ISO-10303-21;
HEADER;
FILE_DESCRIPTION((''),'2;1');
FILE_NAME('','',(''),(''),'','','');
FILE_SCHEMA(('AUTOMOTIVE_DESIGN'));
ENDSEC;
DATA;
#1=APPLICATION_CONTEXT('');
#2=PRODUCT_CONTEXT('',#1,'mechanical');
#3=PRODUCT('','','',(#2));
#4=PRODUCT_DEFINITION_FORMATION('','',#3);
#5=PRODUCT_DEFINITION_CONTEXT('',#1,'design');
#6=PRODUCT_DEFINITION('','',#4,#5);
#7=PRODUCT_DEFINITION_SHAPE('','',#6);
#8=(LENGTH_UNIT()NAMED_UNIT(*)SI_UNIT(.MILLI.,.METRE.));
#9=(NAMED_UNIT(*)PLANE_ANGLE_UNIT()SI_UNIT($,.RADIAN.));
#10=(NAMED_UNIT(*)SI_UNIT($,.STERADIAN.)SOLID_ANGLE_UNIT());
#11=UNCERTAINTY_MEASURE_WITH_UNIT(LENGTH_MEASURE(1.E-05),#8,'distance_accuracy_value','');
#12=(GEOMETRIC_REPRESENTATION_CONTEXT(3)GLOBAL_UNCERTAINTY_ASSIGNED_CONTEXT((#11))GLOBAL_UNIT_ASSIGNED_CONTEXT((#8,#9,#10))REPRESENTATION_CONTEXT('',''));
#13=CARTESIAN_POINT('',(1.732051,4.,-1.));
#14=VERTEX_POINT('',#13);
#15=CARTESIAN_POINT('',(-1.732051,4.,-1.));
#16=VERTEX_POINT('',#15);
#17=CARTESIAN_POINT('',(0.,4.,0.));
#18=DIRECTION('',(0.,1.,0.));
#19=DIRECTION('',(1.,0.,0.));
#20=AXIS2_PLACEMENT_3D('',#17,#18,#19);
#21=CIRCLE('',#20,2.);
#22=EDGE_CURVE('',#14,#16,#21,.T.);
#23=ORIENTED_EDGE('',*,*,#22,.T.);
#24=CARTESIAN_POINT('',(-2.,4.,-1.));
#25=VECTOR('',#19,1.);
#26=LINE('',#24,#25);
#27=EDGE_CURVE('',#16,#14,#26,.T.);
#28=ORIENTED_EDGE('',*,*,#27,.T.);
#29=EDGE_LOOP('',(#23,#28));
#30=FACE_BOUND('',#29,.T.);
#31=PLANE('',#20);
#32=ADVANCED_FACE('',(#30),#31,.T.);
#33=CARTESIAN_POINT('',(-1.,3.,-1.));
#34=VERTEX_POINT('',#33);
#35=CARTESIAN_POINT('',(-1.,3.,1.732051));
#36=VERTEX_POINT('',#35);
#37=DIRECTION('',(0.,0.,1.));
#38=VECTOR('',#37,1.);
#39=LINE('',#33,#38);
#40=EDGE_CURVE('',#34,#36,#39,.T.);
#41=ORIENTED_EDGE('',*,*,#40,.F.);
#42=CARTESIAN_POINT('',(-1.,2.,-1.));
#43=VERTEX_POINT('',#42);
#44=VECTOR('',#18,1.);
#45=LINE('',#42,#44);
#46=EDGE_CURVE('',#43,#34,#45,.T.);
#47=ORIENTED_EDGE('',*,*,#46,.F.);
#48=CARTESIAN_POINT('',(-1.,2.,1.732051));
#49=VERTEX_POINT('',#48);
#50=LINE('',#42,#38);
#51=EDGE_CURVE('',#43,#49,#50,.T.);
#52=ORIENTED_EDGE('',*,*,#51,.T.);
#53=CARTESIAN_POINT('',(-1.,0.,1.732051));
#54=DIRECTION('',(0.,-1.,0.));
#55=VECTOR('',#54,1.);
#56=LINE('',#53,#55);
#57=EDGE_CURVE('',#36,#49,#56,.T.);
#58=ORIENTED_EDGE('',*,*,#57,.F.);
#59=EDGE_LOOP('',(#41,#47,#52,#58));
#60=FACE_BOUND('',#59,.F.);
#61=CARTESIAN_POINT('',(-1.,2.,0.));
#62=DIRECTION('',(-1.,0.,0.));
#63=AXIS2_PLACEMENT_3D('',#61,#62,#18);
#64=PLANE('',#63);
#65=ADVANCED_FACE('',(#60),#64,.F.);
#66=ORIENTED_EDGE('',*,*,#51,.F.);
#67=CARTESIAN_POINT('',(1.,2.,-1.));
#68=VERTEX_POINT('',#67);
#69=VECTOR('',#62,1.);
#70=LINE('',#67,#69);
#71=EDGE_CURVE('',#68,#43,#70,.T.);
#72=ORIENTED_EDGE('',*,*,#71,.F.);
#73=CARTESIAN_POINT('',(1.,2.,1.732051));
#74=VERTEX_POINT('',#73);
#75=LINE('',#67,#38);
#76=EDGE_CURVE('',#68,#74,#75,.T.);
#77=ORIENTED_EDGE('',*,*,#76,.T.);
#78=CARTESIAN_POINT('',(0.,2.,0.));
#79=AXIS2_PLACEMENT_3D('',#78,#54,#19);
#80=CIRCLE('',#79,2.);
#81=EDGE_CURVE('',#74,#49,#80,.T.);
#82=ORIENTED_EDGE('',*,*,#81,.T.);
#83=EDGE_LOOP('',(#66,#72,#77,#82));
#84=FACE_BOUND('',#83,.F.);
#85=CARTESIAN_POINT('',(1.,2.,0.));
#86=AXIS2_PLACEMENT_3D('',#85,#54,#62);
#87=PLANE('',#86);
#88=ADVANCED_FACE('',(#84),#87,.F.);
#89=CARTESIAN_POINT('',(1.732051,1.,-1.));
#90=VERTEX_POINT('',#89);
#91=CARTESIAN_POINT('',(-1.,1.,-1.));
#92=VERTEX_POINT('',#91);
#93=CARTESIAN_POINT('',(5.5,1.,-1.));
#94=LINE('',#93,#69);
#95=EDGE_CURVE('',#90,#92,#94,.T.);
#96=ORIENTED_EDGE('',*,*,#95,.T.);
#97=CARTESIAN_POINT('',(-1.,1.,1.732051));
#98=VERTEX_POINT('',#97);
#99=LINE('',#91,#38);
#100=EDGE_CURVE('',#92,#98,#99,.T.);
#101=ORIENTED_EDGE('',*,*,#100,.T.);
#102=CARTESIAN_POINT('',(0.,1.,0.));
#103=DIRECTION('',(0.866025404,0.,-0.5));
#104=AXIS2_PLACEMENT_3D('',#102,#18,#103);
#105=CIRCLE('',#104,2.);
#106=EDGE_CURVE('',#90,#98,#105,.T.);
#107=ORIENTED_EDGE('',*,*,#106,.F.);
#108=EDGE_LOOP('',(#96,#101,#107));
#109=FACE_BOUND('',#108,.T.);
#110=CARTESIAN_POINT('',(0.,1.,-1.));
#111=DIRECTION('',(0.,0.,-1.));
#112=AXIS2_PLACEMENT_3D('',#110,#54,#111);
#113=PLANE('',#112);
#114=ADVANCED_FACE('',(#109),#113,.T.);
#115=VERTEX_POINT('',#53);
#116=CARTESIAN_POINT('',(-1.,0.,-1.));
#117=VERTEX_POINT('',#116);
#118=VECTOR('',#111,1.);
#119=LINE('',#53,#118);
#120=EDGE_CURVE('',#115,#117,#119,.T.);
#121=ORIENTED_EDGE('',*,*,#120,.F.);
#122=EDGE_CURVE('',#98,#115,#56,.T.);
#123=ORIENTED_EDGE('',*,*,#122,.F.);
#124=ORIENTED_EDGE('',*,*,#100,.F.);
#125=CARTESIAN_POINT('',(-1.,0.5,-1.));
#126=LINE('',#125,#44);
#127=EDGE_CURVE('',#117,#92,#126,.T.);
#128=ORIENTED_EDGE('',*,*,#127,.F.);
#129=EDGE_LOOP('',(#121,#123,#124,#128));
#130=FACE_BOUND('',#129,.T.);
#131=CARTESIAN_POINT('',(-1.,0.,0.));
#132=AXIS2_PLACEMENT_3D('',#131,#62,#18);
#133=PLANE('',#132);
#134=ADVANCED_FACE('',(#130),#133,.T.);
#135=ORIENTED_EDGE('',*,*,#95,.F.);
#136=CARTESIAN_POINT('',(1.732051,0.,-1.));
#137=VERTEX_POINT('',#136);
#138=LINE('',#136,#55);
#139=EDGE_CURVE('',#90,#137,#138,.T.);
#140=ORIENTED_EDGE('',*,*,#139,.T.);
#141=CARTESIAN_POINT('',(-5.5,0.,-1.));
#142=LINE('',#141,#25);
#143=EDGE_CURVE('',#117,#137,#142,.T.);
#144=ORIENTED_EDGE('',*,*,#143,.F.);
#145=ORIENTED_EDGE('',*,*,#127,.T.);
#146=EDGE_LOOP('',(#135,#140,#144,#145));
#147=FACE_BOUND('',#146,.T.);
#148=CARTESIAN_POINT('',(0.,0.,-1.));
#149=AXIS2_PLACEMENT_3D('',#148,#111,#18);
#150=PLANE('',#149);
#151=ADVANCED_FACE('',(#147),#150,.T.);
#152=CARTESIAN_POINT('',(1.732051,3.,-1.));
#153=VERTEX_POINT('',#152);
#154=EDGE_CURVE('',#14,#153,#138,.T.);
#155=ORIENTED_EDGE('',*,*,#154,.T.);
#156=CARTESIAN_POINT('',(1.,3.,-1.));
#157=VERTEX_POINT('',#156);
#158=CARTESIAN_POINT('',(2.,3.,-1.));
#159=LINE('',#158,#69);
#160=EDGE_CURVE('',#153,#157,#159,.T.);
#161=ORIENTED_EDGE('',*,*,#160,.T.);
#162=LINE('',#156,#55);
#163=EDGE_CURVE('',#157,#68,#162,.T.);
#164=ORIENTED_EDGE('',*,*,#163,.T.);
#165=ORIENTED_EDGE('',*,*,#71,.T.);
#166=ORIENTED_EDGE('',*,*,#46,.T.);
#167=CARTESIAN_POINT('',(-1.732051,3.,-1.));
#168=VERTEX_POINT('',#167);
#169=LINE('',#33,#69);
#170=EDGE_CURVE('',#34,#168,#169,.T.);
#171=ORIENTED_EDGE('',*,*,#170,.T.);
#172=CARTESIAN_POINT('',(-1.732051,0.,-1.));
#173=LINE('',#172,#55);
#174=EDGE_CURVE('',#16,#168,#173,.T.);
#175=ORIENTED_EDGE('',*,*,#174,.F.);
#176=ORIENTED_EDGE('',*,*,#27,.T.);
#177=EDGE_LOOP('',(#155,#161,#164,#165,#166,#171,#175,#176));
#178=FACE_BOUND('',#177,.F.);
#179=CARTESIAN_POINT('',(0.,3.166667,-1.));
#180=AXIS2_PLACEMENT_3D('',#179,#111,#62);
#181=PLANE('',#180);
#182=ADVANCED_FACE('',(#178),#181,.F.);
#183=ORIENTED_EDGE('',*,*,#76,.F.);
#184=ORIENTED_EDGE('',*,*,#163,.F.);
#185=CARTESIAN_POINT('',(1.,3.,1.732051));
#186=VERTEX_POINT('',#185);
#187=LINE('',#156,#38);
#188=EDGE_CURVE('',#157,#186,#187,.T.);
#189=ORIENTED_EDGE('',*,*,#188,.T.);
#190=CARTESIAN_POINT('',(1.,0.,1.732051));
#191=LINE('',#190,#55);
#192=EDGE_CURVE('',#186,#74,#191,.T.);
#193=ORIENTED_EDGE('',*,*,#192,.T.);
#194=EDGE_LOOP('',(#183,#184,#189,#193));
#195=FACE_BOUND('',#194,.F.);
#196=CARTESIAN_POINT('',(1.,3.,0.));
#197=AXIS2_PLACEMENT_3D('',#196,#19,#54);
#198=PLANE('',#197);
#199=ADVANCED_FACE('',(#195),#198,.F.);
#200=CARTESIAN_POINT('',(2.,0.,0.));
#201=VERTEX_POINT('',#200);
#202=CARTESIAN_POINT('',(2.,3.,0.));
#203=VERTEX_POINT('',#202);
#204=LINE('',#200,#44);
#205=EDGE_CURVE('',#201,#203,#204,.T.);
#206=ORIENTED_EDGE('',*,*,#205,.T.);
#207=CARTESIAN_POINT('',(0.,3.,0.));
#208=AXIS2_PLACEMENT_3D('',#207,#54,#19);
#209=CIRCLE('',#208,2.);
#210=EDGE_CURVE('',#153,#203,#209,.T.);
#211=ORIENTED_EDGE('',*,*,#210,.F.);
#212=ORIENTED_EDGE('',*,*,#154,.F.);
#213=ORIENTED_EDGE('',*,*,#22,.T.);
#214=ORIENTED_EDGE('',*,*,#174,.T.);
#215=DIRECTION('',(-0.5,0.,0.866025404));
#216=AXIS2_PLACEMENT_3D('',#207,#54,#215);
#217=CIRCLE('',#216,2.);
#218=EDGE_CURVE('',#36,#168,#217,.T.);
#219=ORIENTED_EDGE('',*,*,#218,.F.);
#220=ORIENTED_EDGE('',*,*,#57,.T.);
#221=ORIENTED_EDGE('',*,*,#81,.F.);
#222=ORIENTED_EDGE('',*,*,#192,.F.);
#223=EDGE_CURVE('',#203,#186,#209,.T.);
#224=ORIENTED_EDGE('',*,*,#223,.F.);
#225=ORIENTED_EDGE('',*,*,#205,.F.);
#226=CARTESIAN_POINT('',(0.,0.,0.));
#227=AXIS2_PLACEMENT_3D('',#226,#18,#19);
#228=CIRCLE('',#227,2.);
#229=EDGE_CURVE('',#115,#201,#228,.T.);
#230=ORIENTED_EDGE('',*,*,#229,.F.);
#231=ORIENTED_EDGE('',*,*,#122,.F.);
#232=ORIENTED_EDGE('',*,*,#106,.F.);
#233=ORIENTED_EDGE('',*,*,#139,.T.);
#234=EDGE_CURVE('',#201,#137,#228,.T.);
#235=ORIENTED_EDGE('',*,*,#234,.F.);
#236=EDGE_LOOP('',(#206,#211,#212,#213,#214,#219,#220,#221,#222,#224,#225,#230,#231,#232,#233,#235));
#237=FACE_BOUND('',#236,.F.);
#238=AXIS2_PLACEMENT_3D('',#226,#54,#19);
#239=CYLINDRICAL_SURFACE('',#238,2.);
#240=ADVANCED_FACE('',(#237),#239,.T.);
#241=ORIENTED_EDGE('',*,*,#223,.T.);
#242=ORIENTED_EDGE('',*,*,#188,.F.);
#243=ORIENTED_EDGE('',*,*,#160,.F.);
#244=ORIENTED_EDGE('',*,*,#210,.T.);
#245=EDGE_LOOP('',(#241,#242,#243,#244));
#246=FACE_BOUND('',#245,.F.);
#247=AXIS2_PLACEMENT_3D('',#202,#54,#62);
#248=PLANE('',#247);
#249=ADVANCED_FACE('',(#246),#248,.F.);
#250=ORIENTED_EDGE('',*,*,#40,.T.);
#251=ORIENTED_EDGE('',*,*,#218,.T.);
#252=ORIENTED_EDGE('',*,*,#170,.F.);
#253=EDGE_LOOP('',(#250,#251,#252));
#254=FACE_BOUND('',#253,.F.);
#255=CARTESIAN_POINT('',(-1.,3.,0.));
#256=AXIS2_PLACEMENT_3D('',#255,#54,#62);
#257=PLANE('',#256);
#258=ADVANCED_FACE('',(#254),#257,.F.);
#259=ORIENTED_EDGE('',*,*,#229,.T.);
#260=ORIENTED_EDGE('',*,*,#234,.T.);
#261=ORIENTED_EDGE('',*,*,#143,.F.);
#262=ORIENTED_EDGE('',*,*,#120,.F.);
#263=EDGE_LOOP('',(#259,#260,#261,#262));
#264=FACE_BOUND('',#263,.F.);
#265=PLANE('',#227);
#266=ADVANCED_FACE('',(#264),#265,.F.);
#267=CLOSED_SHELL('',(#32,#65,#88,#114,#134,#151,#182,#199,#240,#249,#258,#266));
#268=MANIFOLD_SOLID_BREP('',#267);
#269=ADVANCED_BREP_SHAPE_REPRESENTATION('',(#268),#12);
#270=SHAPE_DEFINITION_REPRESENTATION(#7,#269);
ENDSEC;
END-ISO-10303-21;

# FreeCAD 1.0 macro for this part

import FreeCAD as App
import Part
import Sketcher
from FreeCAD import Vector
Q = App.Units.Quantity


def add_polygon(sketch, points):
    """Adds a closed chain of lines whose ends are joined by coincident constraints."""
    first, n = sketch.GeometryCount, len(points)
    for a, b in zip(points, points[1:] + points[:1]):
        sketch.addGeometry(Part.LineSegment(App.Vector(*a, 0), App.Vector(*b, 0)), False)
    for i in range(n):
        sketch.addConstraint(Sketcher.Constraint("Coincident", first + i, 2, first + (i + 1) % n, 1))

doc = App.newDocument("Part")
body = doc.addObject("PartDesign::Body", "Body")

sketch1 = body.newObject("Sketcher::SketchObject", "Sketch")
sketch1.AttachmentSupport = (doc.getObject("XZ_Plane"), [""])
sketch1.MapMode = "FlatFace"
sketch1.addGeometry(Part.Circle(Vector(0, 0, 0), Vector(0, 0, 1), 2), False)
sketch1.addConstraint([
    Sketcher.Constraint("Coincident", 0, 3, -1, 1),
    Sketcher.Constraint("Diameter", 0, Q("4 mm")),
])
pad1 = body.newObject("PartDesign::Pad", "Pad")
pad1.Profile = sketch1
pad1.Length = 4
pad1.Reversed = True

sketch2 = body.newObject("Sketcher::SketchObject", "Sketch001")
sketch2.AttachmentSupport = (doc.getObject("XY_Plane"), [""])
sketch2.MapMode = "FlatFace"
add_polygon(sketch2, [(2, 4), (-2, 4), (-2, 3), (-1, 3), (-1, 2), (1, 2), (1, 3), (2, 3)])
add_polygon(sketch2, [(-2, 1), (-2, 0), (-1, 0), (-1, 1)])
sketch2.addConstraint([
    Sketcher.Constraint("Horizontal", 0),
    Sketcher.Constraint("Vertical", 1),
    Sketcher.Constraint("Horizontal", 2),
    Sketcher.Constraint("Vertical", 3),
    Sketcher.Constraint("Horizontal", 4),
    Sketcher.Constraint("Vertical", 5),
    Sketcher.Constraint("Horizontal", 6),
    Sketcher.Constraint("Vertical", 7),
    Sketcher.Constraint("Vertical", 8),
    Sketcher.Constraint("Horizontal", 9),
    Sketcher.Constraint("Vertical", 10),
    Sketcher.Constraint("Horizontal", 11),
    Sketcher.Constraint("Symmetric", 2, 2, 5, 2, -2),
    Sketcher.Constraint("PointOnObject", 8, 2, -1),
    Sketcher.Constraint("Vertical", 1, 2, 8, 2),
    Sketcher.Constraint("Vertical", 3, 2, 9, 2),
    Sketcher.Constraint("Equal", 2, 6),
    Sketcher.Constraint("Equal", 11, 1),
    Sketcher.Constraint("Equal", 1, 3),
    Sketcher.Constraint("Equal", 7, 8),
    Sketcher.Constraint("DistanceX", 0, 2, 0, 1, Q("4 mm")),
    Sketcher.Constraint("DistanceX", 2, 1, 2, 2, Q("1 mm")),
    Sketcher.Constraint("DistanceY", -1, 1, 0, 2, Q("4 mm")),
])
pocket1 = body.newObject("PartDesign::Pocket", "Pocket")
pocket1.Profile = sketch2
pocket1.Type = "TwoLengths"
pocket1.Length = 11
pocket1.Length2 = 1
pocket1.Reversed = True

sketch3 = body.newObject("Sketcher::SketchObject", "Sketch002")
sketch3.AttachmentSupport = (doc.getObject("YZ_Plane"), [""])
sketch3.MapMode = "FlatFace"
add_polygon(sketch3, [(1, -1), (0, -1), (0, -2), (1, -2)])
sketch3.addConstraint([
    Sketcher.Constraint("Horizontal", 0),
    Sketcher.Constraint("Vertical", 1),
    Sketcher.Constraint("Horizontal", 2),
    Sketcher.Constraint("Vertical", 3),
    Sketcher.Constraint("PointOnObject", 0, 2, -2),
    Sketcher.Constraint("Equal", 2, 1),
    Sketcher.Constraint("DistanceX", 0, 2, 0, 1, Q("1 mm")),
    Sketcher.Constraint("DistanceY", 0, 2, -1, 1, Q("1 mm")),
])
pocket2 = body.newObject("PartDesign::Pocket", "Pocket001")
pocket2.Profile = sketch3
pocket2.Length = 11
pocket2.Midplane = True

doc.recompute()
